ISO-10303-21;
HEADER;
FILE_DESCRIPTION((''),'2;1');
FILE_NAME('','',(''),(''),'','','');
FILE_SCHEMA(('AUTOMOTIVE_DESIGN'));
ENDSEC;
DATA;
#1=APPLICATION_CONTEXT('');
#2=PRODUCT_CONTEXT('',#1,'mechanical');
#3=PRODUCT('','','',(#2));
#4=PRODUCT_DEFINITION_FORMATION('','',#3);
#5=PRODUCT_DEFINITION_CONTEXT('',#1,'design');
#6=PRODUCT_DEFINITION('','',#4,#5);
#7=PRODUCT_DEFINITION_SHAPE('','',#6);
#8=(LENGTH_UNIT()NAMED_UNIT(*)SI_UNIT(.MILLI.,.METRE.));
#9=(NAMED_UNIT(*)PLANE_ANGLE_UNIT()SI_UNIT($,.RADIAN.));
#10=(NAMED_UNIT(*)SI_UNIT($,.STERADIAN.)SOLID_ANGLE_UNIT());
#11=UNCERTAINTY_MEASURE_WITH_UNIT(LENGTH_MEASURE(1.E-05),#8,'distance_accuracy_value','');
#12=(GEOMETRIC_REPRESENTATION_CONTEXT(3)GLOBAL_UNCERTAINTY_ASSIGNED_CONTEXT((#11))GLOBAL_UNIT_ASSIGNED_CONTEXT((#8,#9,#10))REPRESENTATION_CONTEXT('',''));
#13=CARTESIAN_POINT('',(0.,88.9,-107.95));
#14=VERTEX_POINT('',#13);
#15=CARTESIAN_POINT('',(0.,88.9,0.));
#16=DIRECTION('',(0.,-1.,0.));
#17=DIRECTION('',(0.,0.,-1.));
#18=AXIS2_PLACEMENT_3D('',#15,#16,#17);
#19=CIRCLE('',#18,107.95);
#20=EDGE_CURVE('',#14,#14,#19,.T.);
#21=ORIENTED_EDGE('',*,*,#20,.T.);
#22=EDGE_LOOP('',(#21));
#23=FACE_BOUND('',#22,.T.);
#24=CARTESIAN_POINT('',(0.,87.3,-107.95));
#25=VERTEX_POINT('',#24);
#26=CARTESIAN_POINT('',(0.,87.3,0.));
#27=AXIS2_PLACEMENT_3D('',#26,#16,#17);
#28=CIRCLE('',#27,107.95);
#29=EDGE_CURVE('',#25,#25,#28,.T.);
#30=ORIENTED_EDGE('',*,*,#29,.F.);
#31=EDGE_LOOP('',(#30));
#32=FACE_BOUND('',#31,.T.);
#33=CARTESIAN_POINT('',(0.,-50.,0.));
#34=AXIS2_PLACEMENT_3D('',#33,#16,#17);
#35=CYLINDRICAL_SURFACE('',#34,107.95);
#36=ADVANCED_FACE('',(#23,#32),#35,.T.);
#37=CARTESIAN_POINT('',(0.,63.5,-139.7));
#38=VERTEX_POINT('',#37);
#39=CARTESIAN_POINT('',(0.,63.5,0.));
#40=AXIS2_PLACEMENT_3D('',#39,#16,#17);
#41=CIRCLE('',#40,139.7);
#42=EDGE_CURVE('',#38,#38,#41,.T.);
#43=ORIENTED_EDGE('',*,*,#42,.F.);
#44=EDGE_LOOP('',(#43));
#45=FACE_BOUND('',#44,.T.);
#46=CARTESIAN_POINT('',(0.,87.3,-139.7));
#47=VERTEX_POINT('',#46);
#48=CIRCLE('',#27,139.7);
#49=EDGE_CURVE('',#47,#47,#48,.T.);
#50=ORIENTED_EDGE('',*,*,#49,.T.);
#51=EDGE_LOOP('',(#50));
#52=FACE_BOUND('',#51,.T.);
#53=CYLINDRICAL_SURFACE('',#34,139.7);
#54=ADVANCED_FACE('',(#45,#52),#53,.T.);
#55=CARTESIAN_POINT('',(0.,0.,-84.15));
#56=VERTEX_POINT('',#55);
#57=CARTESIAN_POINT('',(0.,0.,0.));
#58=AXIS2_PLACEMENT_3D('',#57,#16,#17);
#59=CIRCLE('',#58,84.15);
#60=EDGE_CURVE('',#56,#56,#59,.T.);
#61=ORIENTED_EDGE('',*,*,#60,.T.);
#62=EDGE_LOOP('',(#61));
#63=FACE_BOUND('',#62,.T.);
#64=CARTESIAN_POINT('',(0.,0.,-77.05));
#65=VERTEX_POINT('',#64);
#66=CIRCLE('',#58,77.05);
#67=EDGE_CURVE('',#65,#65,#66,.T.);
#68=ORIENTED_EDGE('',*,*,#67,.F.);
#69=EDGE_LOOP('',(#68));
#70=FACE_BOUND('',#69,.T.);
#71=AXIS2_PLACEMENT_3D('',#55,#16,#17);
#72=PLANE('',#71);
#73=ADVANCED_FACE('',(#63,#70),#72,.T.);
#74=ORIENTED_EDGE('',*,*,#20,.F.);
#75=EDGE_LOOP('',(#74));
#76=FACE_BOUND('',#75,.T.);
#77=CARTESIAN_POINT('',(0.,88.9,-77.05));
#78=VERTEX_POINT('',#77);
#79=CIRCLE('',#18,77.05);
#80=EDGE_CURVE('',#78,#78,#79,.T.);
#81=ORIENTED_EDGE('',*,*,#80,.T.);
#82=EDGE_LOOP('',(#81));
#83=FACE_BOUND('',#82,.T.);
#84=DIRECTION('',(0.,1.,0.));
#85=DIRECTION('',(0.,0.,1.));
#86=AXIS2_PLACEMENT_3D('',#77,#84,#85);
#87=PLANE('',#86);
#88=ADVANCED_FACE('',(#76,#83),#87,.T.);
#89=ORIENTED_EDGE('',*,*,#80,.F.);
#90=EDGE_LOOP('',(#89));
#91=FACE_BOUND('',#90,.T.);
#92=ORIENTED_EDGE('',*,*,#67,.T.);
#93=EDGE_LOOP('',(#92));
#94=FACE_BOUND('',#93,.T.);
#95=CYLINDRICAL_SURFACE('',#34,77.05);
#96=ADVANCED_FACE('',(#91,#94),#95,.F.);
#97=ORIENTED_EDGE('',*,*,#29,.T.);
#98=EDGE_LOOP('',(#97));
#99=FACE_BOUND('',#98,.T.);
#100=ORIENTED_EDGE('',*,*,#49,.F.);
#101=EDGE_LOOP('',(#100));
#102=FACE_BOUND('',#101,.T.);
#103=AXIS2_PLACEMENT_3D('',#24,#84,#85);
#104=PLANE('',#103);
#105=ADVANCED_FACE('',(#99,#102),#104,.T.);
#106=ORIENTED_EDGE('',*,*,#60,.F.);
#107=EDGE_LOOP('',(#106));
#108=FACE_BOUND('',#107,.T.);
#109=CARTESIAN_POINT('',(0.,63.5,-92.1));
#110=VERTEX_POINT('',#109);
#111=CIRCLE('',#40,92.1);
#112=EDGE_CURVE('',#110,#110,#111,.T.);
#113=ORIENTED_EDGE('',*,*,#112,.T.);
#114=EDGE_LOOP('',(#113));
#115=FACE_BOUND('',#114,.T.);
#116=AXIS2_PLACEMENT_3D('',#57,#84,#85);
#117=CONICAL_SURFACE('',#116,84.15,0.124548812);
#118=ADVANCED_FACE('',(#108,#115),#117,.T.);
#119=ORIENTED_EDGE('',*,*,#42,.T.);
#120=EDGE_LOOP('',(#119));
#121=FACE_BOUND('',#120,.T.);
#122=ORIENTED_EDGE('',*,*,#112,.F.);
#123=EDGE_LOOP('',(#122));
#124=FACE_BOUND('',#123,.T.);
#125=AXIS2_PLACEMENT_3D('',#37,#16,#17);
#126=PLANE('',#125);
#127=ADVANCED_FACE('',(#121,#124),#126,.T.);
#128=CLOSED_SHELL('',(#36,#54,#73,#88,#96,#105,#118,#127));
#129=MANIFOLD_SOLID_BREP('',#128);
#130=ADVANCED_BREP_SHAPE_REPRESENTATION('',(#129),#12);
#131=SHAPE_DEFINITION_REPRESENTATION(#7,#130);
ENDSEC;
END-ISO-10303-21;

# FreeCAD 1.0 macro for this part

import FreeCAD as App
import Part
import Sketcher

V = App.Vector


def add_polygon(sketch, points):
    """Adds a closed chain of lines whose ends are joined by coincident constraints."""
    first, n = sketch.GeometryCount, len(points)
    for a, b in zip(points, points[1:] + points[:1]):
        sketch.addGeometry(Part.LineSegment(App.Vector(*a, 0), App.Vector(*b, 0)), False)
    for i in range(n):
        sketch.addConstraint(Sketcher.Constraint("Coincident", first + i, 2, first + (i + 1) % n, 1))

doc = App.newDocument("Part")
body = doc.addObject("PartDesign::Body", "Body")

# Sketch on YZ plane
sketch1 = body.newObject("Sketcher::SketchObject", "Sketch")
sketch1.AttachmentSupport = (doc.getObject("YZ_Plane"), [""])
sketch1.MapMode = "FlatFace"
add_polygon(sketch1, [(88.9, -77), (0, -77), (0, -84.2), (63.5, -92.1), (63.5, -139.7), (87.3, -139.7), (87.3, -108), (88.9, -108)])  # lines 0-7
sketch1.addConstraint([
    Sketcher.Constraint("Horizontal", 0),
    Sketcher.Constraint("Vertical", 1),
    Sketcher.Constraint("Vertical", 3),
    Sketcher.Constraint("Horizontal", 4),
    Sketcher.Constraint("Vertical", 5),
    Sketcher.Constraint("Horizontal", 6),
    Sketcher.Constraint("Vertical", 7),
    Sketcher.Constraint("PointOnObject", 0, 2, -2),
    Sketcher.Constraint("DistanceX", 0, 2, 0, 1, 88.9),
    Sketcher.Constraint("DistanceX", 4, 1, 4, 2, 23.8),
    Sketcher.Constraint("DistanceX", 6, 1, 6, 2, 1.6),
    Sketcher.Constraint("DistanceY", 1, 2, 1, 1, 7.1),
    Sketcher.Constraint("DistanceY", 3, 2, 3, 1, 47.6),
    Sketcher.Constraint("DistanceY", 7, 1, 7, 2, 30.9),
    Sketcher.Constraint("DistanceY", 5, 1, 5, 2, 31.75),
    Sketcher.Constraint("DistanceY", 2, 2, -1, 1, 92.1),
])
revolution = body.newObject("PartDesign::Revolution", "Revolution")
revolution.Profile = sketch1
revolution.ReferenceAxis = (sketch1, ["H_Axis"])
revolution.Angle = 360

doc.recompute()
